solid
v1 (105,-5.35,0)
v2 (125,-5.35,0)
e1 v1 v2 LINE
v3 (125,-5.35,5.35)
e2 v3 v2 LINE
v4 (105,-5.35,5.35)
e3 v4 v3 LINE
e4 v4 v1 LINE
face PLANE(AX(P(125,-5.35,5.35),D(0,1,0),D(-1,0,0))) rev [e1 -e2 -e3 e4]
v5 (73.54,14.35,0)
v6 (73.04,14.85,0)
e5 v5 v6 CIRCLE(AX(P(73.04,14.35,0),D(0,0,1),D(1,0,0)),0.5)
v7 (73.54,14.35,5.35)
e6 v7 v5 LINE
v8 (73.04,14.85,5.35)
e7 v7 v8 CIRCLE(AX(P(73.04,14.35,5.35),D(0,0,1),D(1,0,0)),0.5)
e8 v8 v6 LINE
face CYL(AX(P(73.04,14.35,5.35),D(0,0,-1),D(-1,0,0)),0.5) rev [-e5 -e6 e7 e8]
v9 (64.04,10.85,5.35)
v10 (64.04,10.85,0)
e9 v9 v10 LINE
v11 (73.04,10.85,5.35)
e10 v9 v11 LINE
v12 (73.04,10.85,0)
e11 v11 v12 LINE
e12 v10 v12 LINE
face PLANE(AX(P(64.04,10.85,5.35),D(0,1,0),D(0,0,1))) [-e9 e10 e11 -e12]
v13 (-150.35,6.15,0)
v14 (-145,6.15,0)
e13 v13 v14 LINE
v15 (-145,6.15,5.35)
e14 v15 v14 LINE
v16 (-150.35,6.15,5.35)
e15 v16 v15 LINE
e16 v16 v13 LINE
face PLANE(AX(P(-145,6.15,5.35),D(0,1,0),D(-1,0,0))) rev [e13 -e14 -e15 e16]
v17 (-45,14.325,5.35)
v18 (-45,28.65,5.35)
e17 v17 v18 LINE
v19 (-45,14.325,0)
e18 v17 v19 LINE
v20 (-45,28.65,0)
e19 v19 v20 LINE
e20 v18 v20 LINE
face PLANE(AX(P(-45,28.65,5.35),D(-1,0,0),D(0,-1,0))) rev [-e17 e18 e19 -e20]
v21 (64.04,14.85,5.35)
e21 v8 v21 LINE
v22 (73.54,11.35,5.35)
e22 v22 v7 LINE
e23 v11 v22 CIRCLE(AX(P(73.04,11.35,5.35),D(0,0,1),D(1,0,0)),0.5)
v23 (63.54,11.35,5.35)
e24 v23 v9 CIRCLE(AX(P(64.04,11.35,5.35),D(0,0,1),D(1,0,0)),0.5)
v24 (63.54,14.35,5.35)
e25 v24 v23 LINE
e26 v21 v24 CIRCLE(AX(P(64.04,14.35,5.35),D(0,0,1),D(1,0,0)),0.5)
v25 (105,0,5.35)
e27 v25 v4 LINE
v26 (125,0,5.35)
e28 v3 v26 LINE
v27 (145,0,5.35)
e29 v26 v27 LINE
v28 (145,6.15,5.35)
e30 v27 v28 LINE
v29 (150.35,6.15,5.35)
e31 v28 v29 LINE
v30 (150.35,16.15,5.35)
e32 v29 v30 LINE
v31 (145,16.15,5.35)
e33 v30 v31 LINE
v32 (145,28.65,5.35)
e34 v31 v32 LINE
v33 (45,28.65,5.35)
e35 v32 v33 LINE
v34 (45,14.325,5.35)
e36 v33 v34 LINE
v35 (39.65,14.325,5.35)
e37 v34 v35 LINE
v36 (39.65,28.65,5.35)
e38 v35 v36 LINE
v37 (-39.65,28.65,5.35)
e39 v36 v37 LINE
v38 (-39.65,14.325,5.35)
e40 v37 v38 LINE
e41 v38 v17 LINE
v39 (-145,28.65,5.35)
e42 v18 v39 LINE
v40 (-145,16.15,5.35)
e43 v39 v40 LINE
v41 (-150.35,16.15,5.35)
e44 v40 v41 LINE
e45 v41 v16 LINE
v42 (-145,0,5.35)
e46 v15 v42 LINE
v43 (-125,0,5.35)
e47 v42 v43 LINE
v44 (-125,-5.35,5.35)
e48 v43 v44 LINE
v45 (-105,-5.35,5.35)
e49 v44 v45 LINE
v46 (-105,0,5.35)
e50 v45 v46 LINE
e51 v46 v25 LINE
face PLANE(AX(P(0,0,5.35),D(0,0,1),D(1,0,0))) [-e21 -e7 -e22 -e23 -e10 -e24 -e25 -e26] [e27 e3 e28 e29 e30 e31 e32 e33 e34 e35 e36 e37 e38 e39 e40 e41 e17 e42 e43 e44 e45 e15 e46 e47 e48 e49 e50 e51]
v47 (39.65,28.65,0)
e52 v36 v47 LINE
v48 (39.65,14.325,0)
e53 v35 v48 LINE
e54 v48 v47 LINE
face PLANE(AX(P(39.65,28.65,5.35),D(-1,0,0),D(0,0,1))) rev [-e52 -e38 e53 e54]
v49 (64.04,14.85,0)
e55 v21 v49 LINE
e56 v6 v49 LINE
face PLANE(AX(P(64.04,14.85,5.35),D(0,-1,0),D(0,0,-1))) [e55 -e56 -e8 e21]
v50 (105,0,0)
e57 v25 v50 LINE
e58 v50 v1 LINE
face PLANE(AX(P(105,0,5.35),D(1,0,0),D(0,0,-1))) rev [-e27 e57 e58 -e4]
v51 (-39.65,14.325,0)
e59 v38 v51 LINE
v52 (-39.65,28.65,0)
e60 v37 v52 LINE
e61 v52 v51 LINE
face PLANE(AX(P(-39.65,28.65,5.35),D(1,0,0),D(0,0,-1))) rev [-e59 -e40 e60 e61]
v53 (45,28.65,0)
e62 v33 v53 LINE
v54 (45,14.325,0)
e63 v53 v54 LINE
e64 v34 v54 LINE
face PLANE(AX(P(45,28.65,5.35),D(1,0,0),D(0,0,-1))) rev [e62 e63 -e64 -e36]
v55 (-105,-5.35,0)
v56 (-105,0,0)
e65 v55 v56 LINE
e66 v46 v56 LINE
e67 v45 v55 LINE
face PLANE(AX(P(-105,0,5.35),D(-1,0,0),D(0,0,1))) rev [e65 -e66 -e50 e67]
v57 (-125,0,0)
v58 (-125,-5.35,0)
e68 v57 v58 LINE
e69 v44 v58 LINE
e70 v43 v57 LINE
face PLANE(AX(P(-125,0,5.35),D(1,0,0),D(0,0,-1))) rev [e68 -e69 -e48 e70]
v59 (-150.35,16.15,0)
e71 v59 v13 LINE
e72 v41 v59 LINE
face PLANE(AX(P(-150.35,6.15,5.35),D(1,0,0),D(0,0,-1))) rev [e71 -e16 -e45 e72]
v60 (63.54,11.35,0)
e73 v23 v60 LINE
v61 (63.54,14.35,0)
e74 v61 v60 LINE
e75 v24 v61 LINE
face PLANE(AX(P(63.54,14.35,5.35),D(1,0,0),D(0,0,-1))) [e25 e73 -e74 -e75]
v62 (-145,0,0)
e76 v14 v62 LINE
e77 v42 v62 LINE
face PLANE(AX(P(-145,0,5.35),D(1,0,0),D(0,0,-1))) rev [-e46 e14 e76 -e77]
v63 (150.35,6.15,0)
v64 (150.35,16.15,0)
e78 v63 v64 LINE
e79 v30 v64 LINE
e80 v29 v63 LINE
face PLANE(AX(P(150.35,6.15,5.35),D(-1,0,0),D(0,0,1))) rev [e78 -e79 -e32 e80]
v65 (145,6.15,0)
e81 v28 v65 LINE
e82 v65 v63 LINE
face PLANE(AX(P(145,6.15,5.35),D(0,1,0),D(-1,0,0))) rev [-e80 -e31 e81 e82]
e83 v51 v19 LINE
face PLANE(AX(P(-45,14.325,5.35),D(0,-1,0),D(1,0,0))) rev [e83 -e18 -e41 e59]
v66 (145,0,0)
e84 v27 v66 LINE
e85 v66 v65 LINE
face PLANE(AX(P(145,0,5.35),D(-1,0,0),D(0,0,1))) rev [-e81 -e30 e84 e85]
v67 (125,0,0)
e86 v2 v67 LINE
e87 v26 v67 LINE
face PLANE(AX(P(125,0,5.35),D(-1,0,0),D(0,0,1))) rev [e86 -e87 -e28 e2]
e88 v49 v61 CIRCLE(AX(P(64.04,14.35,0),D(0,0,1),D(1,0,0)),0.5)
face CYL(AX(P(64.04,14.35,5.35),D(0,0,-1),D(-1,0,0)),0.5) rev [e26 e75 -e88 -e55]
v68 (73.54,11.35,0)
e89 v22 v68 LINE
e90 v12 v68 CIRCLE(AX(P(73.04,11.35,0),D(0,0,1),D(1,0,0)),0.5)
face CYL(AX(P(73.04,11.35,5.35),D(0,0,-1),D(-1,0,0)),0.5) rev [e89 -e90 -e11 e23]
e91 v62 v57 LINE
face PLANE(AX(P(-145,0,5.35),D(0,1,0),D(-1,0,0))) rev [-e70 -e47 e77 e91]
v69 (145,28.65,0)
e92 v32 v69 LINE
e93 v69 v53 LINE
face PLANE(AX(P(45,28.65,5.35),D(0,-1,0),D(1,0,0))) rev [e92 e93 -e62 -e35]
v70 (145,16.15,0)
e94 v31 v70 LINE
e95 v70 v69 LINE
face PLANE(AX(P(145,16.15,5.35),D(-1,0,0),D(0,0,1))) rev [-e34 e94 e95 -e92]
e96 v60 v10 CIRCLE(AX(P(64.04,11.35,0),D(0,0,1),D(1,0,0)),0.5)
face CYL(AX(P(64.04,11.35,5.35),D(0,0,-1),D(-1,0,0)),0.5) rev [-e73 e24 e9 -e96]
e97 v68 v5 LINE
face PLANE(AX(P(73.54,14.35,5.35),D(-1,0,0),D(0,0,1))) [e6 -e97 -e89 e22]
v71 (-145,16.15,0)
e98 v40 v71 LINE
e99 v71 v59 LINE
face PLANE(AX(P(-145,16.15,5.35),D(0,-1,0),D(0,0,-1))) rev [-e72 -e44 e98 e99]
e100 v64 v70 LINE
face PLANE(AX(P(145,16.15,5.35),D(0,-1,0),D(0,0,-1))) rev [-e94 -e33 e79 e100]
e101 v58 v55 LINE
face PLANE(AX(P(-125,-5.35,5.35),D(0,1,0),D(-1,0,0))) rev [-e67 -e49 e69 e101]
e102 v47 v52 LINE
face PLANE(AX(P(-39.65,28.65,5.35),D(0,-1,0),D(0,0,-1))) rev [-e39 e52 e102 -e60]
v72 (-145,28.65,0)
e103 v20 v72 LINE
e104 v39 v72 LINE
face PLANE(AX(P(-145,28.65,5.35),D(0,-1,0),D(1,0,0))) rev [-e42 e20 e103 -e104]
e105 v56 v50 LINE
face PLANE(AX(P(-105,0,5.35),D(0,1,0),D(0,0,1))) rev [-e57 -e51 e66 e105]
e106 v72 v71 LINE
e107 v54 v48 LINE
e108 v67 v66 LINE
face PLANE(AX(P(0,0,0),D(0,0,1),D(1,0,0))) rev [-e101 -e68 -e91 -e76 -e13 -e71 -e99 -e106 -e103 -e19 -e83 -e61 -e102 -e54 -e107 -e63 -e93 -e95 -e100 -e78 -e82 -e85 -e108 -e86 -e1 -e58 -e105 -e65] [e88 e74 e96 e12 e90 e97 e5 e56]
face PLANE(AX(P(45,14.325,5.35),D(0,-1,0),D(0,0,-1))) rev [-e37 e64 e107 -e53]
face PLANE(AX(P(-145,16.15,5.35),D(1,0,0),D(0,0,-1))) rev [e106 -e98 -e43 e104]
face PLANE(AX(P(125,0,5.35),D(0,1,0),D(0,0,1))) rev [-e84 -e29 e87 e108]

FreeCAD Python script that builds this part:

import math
import FreeCAD as App
import Part
import Sketcher

V = App.Vector
Q = App.Units.Quantity

doc = App.newDocument("Part")
body = doc.addObject("PartDesign::Body", "Body")

# Sketch on XY plane
sketch1 = body.newObject("Sketcher::SketchObject", "Sketch")
sketch1.AttachmentSupport = (doc.getObject("XY_Plane"), [""])
sketch1.MapMode = "FlatFace"
sketch1.addGeometry([
    Part.LineSegment(V(-145, 0, 0), V(-125, 0, 0)),  # 0
    Part.LineSegment(V(-125, 0, 0), V(-125, -5.35, 0)),  # 1
    Part.LineSegment(V(-125, -5.35, 0), V(-105, -5.35, 0)),  # 2
    Part.LineSegment(V(-105, -5.35, 0), V(-105, 0, 0)),  # 3
    Part.LineSegment(V(-105, 0, 0), V(105, 0, 0)),  # 4
    Part.LineSegment(V(105, 0, 0), V(105, -5.35, 0)),  # 5
    Part.LineSegment(V(105, -5.35, 0), V(125, -5.35, 0)),  # 6
    Part.LineSegment(V(125, -5.35, 0), V(125, 0, 0)),  # 7
    Part.LineSegment(V(125, 0, 0), V(145, 0, 0)),  # 8
    Part.LineSegment(V(145, 0, 0), V(145, 6.15, 0)),  # 9
    Part.LineSegment(V(145, 6.15, 0), V(150.35, 6.15, 0)),  # 10
    Part.LineSegment(V(150.35, 6.15, 0), V(150.35, 16.15, 0)),  # 11
    Part.LineSegment(V(150.35, 16.15, 0), V(145, 16.15, 0)),  # 12
    Part.LineSegment(V(145, 16.15, 0), V(145, 28.65, 0)),  # 13
    Part.LineSegment(V(145, 28.65, 0), V(45, 28.65, 0)),  # 14
    Part.LineSegment(V(45, 28.65, 0), V(45, 14.32, 0)),  # 15
    Part.LineSegment(V(45, 14.32, 0), V(39.65, 14.32, 0)),  # 16
    Part.LineSegment(V(39.65, 14.32, 0), V(39.65, 28.65, 0)),  # 17
    Part.LineSegment(V(39.65, 28.65, 0), V(-39.65, 28.65, 0)),  # 18
    Part.LineSegment(V(-39.65, 28.65, 0), V(-39.65, 14.32, 0)),  # 19
    Part.LineSegment(V(-39.65, 14.32, 0), V(-45, 14.32, 0)),  # 20
    Part.LineSegment(V(-45, 14.32, 0), V(-45, 28.65, 0)),  # 21
    Part.LineSegment(V(-45, 28.65, 0), V(-145, 28.65, 0)),  # 22
    Part.LineSegment(V(-145, 28.65, 0), V(-145, 16.15, 0)),  # 23
    Part.LineSegment(V(-145, 16.15, 0), V(-150.35, 16.15, 0)),  # 24
    Part.LineSegment(V(-150.35, 16.15, 0), V(-150.35, 6.15, 0)),  # 25
    Part.LineSegment(V(-150.35, 6.15, 0), V(-145, 6.15, 0)),  # 26
    Part.LineSegment(V(-145, 6.15, 0), V(-145, 0, 0)),  # 27
    Part.ArcOfCircle(Part.Circle(V(64.04, 14.35, 0), V(0, 0, 1), 0.5), math.radians(90), math.radians(180)),  # 28
    Part.LineSegment(V(64.04, 14.85, 0), V(73.04, 14.85, 0)),  # 29
    Part.ArcOfCircle(Part.Circle(V(73.04, 14.35, 0), V(0, 0, 1), 0.5), math.radians(0), math.radians(90)),  # 30
    Part.LineSegment(V(73.54, 14.35, 0), V(73.54, 11.35, 0)),  # 31
    Part.ArcOfCircle(Part.Circle(V(73.04, 11.35, 0), V(0, 0, 1), 0.5), math.radians(-90), math.radians(0)),  # 32
    Part.LineSegment(V(73.04, 10.85, 0), V(64.04, 10.85, 0)),  # 33
    Part.ArcOfCircle(Part.Circle(V(64.04, 11.35, 0), V(0, 0, 1), 0.5), math.radians(180), math.radians(270)),  # 34
    Part.LineSegment(V(63.54, 11.35, 0), V(63.54, 14.35, 0)),  # 35
], False)
sketch1.addConstraint([
    Sketcher.Constraint("Coincident", 0, 2, 1, 1),
    Sketcher.Constraint("Coincident", 1, 2, 2, 1),
    Sketcher.Constraint("Coincident", 2, 2, 3, 1),
    Sketcher.Constraint("Coincident", 3, 2, 4, 1),
    Sketcher.Constraint("Coincident", 4, 2, 5, 1),
    Sketcher.Constraint("Coincident", 5, 2, 6, 1),
    Sketcher.Constraint("Coincident", 6, 2, 7, 1),
    Sketcher.Constraint("Coincident", 7, 2, 8, 1),
    Sketcher.Constraint("Coincident", 8, 2, 9, 1),
    Sketcher.Constraint("Coincident", 9, 2, 10, 1),
    Sketcher.Constraint("Coincident", 10, 2, 11, 1),
    Sketcher.Constraint("Coincident", 11, 2, 12, 1),
    Sketcher.Constraint("Coincident", 12, 2, 13, 1),
    Sketcher.Constraint("Coincident", 13, 2, 14, 1),
    Sketcher.Constraint("Coincident", 14, 2, 15, 1),
    Sketcher.Constraint("Coincident", 15, 2, 16, 1),
    Sketcher.Constraint("Coincident", 16, 2, 17, 1),
    Sketcher.Constraint("Coincident", 17, 2, 18, 1),
    Sketcher.Constraint("Coincident", 18, 2, 19, 1),
    Sketcher.Constraint("Coincident", 19, 2, 20, 1),
    Sketcher.Constraint("Coincident", 20, 2, 21, 1),
    Sketcher.Constraint("Coincident", 21, 2, 22, 1),
    Sketcher.Constraint("Coincident", 22, 2, 23, 1),
    Sketcher.Constraint("Coincident", 23, 2, 24, 1),
    Sketcher.Constraint("Coincident", 24, 2, 25, 1),
    Sketcher.Constraint("Coincident", 25, 2, 26, 1),
    Sketcher.Constraint("Coincident", 26, 2, 27, 1),
    Sketcher.Constraint("Coincident", 27, 2, 0, 1),
    Sketcher.Constraint("Tangent", 28, 1, 29, 1),
    Sketcher.Constraint("Tangent", 29, 2, 30, 2),
    Sketcher.Constraint("Tangent", 30, 1, 31, 1),
    Sketcher.Constraint("Tangent", 31, 2, 32, 2),
    Sketcher.Constraint("Tangent", 32, 1, 33, 1),
    Sketcher.Constraint("Tangent", 33, 2, 34, 2),
    Sketcher.Constraint("Tangent", 34, 1, 35, 1),
    Sketcher.Constraint("Tangent", 35, 2, 28, 2),
    Sketcher.Constraint("Horizontal", 0),
    Sketcher.Constraint("Vertical", 1),
    Sketcher.Constraint("Horizontal", 2),
    Sketcher.Constraint("Vertical", 3),
    Sketcher.Constraint("Horizontal", 4),
    Sketcher.Constraint("Vertical", 5),
    Sketcher.Constraint("Horizontal", 6),
    Sketcher.Constraint("Vertical", 7),
    Sketcher.Constraint("Horizontal", 8),
    Sketcher.Constraint("Vertical", 9),
    Sketcher.Constraint("Horizontal", 10),
    Sketcher.Constraint("Vertical", 11),
    Sketcher.Constraint("Horizontal", 12),
    Sketcher.Constraint("Vertical", 13),
    Sketcher.Constraint("Horizontal", 14),
    Sketcher.Constraint("Vertical", 15),
    Sketcher.Constraint("Horizontal", 16),
    Sketcher.Constraint("Vertical", 17),
    Sketcher.Constraint("Horizontal", 18),
    Sketcher.Constraint("Vertical", 19),
    Sketcher.Constraint("Horizontal", 20),
    Sketcher.Constraint("Vertical", 21),
    Sketcher.Constraint("Horizontal", 22),
    Sketcher.Constraint("Vertical", 23),
    Sketcher.Constraint("Horizontal", 24),
    Sketcher.Constraint("Vertical", 25),
    Sketcher.Constraint("Horizontal", 26),
    Sketcher.Constraint("Vertical", 27),
    Sketcher.Constraint("Horizontal", 29),
    Sketcher.Constraint("Vertical", 31),
    Sketcher.Constraint("Horizontal", 33),
    Sketcher.Constraint("Vertical", 35),
    Sketcher.Constraint("Equal", 28, 30),
    Sketcher.Constraint("Equal", 30, 32),
    Sketcher.Constraint("Equal", 32, 34),
    Sketcher.Constraint("Symmetric", 3, 2, 4, 2, -1, 1),
    Sketcher.Constraint("Symmetric", 0, 2, 7, 2, -1, 1),
    Sketcher.Constraint("Symmetric", 16, 2, 19, 2, -2),
    Sketcher.Constraint("Symmetric", 14, 2, 21, 2, -2),
    Sketcher.Constraint("Symmetric", 12, 2, 23, 2, -2),
    Sketcher.Constraint("Symmetric", 10, 2, 25, 2, -2),
    Sketcher.Constraint("Symmetric", 8, 2, 27, 2, -2),
    Sketcher.Constraint("Horizontal", 2, 2, 5, 2),
    Sketcher.Constraint("Horizontal", 14, 2, 17, 2),
    Sketcher.Constraint("Vertical", 9, 2, 12, 2),
    Sketcher.Constraint("Equal", 0, 2),
    Sketcher.Constraint("Equal", 12, 16),
    Sketcher.Constraint("Equal", 26, 1),
    Sketcher.Constraint("Radius", 28, Q("0.5 mm")),
    Sketcher.Constraint("DistanceX", 0, 1, 0, 2, Q("20 mm")),
    Sketcher.Constraint("DistanceX", 4, 1, 4, 2, Q("210 mm")),
    Sketcher.Constraint("DistanceX", 14, 2, 14, 1, Q("100 mm")),
    Sketcher.Constraint("DistanceX", 29, 1, 29, 2, Q("9 mm")),
    Sketcher.Constraint("DistanceY", 11, 1, 11, 2, Q("10 mm")),
    Sketcher.Constraint("DistanceY", 31, 2, 31, 1, Q("3 mm")),
    Sketcher.Constraint("DistanceX", 18, 2, 18, 1, Q("79.3 mm")),
    Sketcher.Constraint("DistanceY", 13, 1, 13, 2, Q("12.5 mm")),
    Sketcher.Constraint("DistanceY", 2, 2, 18, 2, Q("34 mm")),
    Sketcher.Constraint("DistanceY", 1, 2, 34, 3, Q("16.7 mm")),
    Sketcher.Constraint("DistanceY", 15, 2, 15, 1, Q("14.325 mm")),
    Sketcher.Constraint("DistanceX", -1, 1, 28, 3, Q("64.04 mm")),
])
pad1 = body.newObject("PartDesign::Pad", "Pad")
pad1.Profile = sketch1
pad1.Length = 5.35

doc.recompute()
